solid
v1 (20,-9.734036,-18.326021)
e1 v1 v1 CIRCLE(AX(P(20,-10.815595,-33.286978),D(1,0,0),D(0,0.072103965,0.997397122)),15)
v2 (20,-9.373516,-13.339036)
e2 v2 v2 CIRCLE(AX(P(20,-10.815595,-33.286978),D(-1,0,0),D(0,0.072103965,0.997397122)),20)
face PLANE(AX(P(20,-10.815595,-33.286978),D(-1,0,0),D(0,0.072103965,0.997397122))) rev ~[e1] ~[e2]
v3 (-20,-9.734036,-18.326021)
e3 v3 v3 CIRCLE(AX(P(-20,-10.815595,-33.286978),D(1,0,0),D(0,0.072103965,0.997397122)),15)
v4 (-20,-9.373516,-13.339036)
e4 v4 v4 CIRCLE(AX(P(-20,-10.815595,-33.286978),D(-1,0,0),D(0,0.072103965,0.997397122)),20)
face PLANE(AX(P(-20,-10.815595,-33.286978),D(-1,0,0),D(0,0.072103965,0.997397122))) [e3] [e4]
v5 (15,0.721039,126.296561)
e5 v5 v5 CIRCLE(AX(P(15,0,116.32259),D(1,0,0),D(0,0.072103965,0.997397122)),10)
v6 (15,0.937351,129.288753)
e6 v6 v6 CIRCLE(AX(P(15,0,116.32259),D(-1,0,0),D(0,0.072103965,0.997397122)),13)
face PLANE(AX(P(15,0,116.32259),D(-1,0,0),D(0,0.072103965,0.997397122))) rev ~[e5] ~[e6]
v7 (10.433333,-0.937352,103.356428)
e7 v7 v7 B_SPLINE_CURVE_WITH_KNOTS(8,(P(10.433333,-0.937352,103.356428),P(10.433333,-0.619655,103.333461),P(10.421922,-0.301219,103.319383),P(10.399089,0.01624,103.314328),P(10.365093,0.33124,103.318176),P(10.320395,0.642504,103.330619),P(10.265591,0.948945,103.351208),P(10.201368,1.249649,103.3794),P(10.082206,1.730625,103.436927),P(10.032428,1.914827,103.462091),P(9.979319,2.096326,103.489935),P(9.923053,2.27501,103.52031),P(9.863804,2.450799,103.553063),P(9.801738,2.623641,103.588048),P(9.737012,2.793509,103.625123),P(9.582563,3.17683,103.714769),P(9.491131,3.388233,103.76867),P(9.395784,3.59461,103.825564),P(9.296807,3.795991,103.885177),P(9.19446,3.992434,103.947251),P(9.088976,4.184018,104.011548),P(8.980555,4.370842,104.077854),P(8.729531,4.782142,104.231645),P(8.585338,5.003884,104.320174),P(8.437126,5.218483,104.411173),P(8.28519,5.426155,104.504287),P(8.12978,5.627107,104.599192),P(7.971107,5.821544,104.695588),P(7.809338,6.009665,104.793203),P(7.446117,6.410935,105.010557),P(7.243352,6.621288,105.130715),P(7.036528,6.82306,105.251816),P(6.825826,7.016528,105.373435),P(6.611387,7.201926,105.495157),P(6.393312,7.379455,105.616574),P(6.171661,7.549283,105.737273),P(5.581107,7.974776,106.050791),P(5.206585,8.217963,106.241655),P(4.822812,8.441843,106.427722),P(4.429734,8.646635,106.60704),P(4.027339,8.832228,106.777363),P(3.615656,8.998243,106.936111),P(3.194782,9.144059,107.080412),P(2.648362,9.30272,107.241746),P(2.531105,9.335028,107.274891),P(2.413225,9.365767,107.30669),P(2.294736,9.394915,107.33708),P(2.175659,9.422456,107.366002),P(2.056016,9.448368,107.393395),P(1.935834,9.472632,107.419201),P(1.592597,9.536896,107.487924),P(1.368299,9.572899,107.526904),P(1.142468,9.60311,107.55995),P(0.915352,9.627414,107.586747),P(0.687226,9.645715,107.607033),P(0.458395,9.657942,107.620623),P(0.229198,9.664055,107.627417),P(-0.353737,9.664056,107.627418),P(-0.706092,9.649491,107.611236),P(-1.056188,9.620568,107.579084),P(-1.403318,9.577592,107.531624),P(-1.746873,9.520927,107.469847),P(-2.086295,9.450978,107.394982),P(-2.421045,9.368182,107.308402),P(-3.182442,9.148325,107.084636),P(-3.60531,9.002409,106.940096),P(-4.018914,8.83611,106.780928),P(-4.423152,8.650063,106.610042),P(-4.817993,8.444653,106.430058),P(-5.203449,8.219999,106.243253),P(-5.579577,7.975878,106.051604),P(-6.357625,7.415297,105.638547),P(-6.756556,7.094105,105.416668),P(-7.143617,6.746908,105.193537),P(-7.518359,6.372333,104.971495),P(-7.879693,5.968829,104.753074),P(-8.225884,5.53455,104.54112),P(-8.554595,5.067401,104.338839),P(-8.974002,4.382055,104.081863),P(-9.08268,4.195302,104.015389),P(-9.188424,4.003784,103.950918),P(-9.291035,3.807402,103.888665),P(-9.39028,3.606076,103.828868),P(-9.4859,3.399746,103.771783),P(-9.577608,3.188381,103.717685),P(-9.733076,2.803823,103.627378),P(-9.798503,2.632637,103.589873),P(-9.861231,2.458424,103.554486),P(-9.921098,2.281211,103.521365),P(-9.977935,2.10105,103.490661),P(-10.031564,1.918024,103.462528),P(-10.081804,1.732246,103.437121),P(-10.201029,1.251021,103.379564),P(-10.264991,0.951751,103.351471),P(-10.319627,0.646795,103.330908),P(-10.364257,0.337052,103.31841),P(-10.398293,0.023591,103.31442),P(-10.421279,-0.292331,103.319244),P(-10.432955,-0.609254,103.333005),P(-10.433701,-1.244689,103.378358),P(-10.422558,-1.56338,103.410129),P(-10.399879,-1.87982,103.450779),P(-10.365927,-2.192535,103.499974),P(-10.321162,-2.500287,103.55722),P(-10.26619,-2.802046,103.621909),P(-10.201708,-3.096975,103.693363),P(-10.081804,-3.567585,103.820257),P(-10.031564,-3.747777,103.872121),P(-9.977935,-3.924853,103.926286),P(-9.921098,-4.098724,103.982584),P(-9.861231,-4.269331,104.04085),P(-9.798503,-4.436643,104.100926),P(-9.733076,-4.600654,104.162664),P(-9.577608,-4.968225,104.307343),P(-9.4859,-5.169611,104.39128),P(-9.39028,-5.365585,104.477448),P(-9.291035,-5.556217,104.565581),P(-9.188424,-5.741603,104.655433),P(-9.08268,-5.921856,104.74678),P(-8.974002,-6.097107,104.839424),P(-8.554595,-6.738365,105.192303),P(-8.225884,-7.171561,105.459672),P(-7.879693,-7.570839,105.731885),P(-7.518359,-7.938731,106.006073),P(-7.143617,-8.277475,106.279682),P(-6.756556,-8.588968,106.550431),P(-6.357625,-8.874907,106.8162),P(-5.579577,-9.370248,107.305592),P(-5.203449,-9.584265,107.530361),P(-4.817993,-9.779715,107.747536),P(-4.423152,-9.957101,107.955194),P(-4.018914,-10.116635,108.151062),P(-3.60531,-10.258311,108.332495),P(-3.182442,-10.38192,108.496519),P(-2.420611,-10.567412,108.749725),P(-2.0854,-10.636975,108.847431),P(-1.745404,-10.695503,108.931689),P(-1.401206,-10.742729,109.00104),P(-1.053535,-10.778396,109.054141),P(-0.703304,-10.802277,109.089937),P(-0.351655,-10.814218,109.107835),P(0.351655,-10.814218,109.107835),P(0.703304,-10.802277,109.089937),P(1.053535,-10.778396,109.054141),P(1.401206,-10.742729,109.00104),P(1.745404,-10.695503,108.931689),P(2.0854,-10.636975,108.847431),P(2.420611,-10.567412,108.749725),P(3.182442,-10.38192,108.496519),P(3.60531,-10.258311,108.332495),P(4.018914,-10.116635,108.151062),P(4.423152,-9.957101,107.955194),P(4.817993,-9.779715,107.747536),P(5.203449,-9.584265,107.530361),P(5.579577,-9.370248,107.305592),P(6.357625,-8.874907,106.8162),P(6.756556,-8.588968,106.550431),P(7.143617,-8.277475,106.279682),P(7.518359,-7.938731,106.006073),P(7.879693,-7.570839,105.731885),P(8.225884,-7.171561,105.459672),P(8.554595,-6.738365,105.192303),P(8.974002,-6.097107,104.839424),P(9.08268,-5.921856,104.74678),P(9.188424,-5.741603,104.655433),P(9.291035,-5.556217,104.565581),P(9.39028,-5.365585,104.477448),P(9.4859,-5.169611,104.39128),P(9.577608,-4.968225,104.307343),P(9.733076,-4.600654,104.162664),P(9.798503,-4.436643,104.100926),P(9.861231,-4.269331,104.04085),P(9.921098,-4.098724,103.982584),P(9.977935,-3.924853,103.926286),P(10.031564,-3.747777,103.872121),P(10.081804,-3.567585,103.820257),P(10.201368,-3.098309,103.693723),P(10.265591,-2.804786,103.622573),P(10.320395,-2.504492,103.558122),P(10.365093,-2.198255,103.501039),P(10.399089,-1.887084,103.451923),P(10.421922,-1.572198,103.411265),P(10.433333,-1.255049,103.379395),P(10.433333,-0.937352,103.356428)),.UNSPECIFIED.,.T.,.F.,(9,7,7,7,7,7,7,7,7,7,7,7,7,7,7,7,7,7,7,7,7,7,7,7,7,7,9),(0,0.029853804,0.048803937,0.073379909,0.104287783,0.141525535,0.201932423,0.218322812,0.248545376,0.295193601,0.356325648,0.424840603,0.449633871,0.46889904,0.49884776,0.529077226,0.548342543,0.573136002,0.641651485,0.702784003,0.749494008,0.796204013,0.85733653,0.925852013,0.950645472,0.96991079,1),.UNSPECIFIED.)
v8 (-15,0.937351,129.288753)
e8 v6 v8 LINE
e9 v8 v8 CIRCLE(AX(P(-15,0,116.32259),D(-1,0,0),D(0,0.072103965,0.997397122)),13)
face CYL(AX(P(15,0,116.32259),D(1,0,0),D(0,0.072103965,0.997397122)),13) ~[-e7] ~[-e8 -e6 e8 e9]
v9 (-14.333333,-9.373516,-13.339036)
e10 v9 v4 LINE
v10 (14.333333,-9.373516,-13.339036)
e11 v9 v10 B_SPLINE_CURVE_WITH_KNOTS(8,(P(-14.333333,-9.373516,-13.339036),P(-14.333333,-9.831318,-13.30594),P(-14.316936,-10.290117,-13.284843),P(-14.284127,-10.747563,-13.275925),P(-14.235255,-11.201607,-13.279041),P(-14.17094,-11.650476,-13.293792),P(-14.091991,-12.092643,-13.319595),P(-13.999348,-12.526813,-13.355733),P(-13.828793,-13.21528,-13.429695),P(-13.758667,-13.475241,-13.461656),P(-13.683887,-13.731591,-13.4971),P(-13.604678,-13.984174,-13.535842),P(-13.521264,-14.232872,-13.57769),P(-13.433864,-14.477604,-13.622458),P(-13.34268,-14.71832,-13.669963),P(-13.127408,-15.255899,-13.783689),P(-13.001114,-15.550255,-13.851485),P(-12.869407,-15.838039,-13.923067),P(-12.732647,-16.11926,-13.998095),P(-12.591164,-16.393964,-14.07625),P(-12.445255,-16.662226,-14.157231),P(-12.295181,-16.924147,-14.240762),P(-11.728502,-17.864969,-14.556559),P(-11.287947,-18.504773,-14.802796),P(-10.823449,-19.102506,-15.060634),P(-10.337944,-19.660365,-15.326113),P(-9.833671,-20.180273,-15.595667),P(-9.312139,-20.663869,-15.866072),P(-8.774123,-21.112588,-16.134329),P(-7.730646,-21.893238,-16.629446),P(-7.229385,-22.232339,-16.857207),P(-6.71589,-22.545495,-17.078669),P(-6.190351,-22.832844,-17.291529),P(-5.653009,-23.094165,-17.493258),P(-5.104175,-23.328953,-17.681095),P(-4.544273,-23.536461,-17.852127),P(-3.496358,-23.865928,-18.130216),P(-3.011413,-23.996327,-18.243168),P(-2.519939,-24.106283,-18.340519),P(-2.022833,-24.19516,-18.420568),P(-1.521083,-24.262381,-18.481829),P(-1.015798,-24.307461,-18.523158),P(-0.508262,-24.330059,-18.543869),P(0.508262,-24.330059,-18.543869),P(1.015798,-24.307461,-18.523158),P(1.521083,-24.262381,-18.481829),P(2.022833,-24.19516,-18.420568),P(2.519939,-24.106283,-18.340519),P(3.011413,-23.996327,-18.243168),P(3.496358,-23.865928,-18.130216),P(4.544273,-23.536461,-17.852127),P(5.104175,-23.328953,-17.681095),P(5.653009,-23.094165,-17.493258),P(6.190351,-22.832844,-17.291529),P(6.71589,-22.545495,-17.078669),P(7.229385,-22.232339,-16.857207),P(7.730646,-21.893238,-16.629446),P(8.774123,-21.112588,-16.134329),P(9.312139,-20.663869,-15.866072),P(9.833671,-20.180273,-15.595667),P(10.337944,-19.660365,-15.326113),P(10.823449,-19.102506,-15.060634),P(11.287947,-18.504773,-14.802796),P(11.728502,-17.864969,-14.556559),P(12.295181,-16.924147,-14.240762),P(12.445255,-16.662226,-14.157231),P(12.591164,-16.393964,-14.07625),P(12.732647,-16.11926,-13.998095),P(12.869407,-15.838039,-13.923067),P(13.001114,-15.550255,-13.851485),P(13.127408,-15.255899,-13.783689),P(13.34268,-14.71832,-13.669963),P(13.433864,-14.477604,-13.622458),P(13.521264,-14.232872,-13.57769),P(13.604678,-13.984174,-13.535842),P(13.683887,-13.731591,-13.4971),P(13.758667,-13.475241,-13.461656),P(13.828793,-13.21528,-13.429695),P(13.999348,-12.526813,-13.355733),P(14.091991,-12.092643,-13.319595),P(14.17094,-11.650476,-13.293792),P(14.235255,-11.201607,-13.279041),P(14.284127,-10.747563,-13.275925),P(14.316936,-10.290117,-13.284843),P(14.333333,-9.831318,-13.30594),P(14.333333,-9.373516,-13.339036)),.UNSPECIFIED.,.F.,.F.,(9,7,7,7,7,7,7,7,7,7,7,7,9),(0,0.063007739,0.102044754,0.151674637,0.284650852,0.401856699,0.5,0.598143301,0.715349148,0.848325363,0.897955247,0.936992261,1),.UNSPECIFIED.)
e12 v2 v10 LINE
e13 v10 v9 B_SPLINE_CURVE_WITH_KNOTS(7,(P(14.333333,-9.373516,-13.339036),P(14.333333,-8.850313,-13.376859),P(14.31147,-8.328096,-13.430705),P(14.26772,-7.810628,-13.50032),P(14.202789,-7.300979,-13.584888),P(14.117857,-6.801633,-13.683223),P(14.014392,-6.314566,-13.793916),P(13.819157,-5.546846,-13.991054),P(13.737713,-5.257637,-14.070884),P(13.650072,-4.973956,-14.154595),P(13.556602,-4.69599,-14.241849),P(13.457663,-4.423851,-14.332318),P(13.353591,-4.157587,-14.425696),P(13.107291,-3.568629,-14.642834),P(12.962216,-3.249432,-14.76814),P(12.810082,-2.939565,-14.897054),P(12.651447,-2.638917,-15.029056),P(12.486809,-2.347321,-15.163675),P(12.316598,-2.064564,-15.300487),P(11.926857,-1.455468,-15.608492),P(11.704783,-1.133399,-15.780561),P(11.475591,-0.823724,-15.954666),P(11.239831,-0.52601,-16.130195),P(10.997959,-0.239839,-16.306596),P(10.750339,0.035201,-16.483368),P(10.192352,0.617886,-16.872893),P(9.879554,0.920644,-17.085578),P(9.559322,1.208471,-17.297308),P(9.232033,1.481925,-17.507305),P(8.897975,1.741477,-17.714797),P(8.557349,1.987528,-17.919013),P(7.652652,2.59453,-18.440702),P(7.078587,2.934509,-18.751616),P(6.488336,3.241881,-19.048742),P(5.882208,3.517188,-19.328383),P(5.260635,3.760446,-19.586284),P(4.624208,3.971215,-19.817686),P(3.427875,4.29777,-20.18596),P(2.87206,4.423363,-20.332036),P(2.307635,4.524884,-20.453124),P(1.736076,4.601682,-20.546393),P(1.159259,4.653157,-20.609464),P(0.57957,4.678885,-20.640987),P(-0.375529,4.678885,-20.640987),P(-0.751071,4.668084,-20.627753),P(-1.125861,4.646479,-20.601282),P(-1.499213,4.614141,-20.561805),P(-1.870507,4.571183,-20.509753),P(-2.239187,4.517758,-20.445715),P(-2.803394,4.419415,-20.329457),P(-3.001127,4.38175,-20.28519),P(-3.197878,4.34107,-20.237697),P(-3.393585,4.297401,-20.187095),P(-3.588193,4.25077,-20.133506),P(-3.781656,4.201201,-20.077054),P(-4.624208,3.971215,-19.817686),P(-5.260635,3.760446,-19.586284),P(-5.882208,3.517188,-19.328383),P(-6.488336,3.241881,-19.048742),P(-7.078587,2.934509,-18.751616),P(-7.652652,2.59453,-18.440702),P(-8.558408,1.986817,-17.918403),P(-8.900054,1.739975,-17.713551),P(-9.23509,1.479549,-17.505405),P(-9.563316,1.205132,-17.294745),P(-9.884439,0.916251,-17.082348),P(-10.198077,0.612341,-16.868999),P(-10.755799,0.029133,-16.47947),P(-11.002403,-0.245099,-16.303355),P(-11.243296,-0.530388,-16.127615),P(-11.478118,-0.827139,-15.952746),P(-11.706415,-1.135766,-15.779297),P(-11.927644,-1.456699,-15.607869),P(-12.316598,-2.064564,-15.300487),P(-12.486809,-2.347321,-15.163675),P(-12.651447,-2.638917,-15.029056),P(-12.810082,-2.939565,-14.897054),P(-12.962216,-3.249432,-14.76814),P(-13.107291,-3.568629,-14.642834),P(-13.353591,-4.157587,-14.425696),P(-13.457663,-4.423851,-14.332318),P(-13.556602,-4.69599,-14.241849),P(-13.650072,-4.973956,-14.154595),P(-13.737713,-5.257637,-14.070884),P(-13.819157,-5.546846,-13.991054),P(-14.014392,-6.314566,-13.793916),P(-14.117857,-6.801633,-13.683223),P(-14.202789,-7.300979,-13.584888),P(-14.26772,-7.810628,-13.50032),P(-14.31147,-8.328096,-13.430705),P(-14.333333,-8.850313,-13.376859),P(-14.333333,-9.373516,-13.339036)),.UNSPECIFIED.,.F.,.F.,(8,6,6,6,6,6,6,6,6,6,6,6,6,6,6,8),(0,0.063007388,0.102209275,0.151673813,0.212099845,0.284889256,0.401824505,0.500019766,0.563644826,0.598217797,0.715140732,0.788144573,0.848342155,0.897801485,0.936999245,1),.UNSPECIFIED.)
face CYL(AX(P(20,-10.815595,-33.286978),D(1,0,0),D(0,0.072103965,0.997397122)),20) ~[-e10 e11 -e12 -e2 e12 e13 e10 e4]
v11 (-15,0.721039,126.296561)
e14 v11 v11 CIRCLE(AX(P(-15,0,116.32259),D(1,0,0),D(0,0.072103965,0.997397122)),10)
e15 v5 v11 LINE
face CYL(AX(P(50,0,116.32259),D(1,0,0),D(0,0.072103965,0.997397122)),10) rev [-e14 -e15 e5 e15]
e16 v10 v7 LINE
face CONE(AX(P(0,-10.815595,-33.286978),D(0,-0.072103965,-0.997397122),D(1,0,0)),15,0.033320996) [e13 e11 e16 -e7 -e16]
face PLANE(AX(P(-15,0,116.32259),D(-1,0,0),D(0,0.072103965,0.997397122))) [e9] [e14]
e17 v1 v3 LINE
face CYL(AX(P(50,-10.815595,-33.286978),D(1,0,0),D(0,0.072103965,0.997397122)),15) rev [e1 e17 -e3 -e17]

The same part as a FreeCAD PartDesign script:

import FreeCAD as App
import Part
import Sketcher

V = App.Vector
Q = App.Units.Quantity

doc = App.newDocument("Part")
params = doc.addObject("Spreadsheet::Sheet", "Params")
for row, (alias, value) in enumerate([
    ("sketch1_diameter", "20 mm"),
    ("pad1_length", "100 mm"),
    ("sketch2_diameter", "30 mm"),
    ("pad2_length", "100 mm"),
    ("sketch3_width", "15 mm"),
    ("sketch3_width2", "10 mm"),
    ("sketch3_height", "150 mm"),
    ("revolution_angle", "360 deg"),
    ("sketch4_diameter", "26 mm"),
    ("pad3_length", "30 mm"),
    ("sketch5_diameter", "40 mm"),
    ("pad4_length", "40 mm"),
], start=1):
    params.set(f"A{row}", alias)
    params.set(f"B{row}", "=" + value)
    params.setAlias(f"B{row}", alias)

body = doc.addObject("PartDesign::Body", "Body")

sketch1 = doc.addObject("Sketcher::SketchObject", "Sketch")
body.addObject(sketch1)
sketch1.AttachmentSupport = (doc.YZ_Plane, [""])
sketch1.MapMode = "FlatFace"
sketch1.AttachmentOffset = App.Placement(V(0, 0, 50), App.Rotation())
sketch1.addGeometry(Part.Circle(V(0, 150, 0), V(0, 0, 1), 10), False)
sketch1.addConstraint([
    Sketcher.Constraint("PointOnObject", 0, 3, -2),
    Sketcher.Constraint("Diameter", 0, Q("20 mm")),
    Sketcher.Constraint("DistanceY", -1, 1, 0, 3, Q("150 mm")),
])
sketch1.setExpression("Constraints[1]", "Params.sketch1_diameter")
pad1 = doc.addObject("PartDesign::Pad", "Pad")
body.addObject(pad1)
pad1.Profile = sketch1
pad1.setExpression("Length", "Params.pad1_length")
pad1.Reversed = True
body2 = doc.addObject("PartDesign::Body", "Body001")
body2.AllowCompound = True

sketch2 = doc.addObject("Sketcher::SketchObject", "Sketch001")
body2.addObject(sketch2)
sketch2.AttachmentSupport = (doc.getObject("YZ_Plane001"), [""])
sketch2.MapMode = "FlatFace"
sketch2.AttachmentOffset = App.Placement(V(0, 0, 50), App.Rotation())
sketch2.addGeometry(Part.Circle(V(0, 0, 0), V(0, 0, 1), 15), False)
sketch2.addConstraint([
    Sketcher.Constraint("Coincident", 0, 3, -1, 1),
    Sketcher.Constraint("Diameter", 0, Q("30 mm")),
])
sketch2.setExpression("Constraints[1]", "Params.sketch2_diameter")
pad2 = doc.addObject("PartDesign::Pad", "Pad001")
body2.addObject(pad2)
pad2.Profile = sketch2
pad2.setExpression("Length", "Params.pad2_length")
pad2.Reversed = True
doc.recompute()

boolean = doc.addObject("PartDesign::Boolean", "Boolean")
body2.addObject(boolean)
boolean.Type = "Fuse"
boolean.addObjects([body])
body3 = doc.addObject("PartDesign::Body", "Body002")

sketch3 = doc.addObject("Sketcher::SketchObject", "Sketch002")
body3.addObject(sketch3)
sketch3.AttachmentSupport = (doc.getObject("XZ_Plane002"), [""])
sketch3.MapMode = "FlatFace"
sketch3.addGeometry([
    Part.LineSegment(V(0, 0, 0), V(15, 0, 0)),
    Part.LineSegment(V(15, 0, 0), V(10, 150, 0)),
    Part.LineSegment(V(10, 150, 0), V(0, 150, 0)),
    Part.LineSegment(V(0, 150, 0), V(0, 0, 0)),
], False)
sketch3.addConstraint([
    Sketcher.Constraint("Coincident", 0, 2, 1, 1),
    Sketcher.Constraint("Coincident", 1, 2, 2, 1),
    Sketcher.Constraint("Coincident", 2, 2, 3, 1),
    Sketcher.Constraint("Coincident", 3, 2, 0, 1),
    Sketcher.Constraint("Horizontal", 0),
    Sketcher.Constraint("Horizontal", 2),
    Sketcher.Constraint("Vertical", 3),
    Sketcher.Constraint("Coincident", 3, 2, -1, 1),
    Sketcher.Constraint("DistanceX", 0, 1, 0, 2, Q("15 mm")),
    Sketcher.Constraint("DistanceX", 2, 2, 2, 1, Q("10 mm")),
    Sketcher.Constraint("DistanceY", 3, 2, 3, 1, Q("150 mm")),
])
sketch3.setExpression("Constraints[8]", "Params.sketch3_width")
sketch3.setExpression("Constraints[9]", "Params.sketch3_width2")
sketch3.setExpression("Constraints[10]", "Params.sketch3_height")
revolution = doc.addObject("PartDesign::Revolution", "Revolution")
body3.addObject(revolution)
revolution.Profile = sketch3
revolution.ReferenceAxis = (sketch3, ["V_Axis"])
revolution.setExpression("Angle", "Params.revolution_angle")
body4 = doc.addObject("PartDesign::Body", "Body003")

sketch4 = doc.addObject("Sketcher::SketchObject", "Sketch003")
body4.addObject(sketch4)
sketch4.AttachmentSupport = (doc.getObject("YZ_Plane003"), [""])
sketch4.MapMode = "FlatFace"
sketch4.AttachmentOffset = App.Placement(V(0, 0, 15), App.Rotation())
sketch4.addGeometry(Part.Circle(V(0, 150, 0), V(0, 0, 1), 13), False)
sketch4.addConstraint([
    Sketcher.Constraint("PointOnObject", 0, 3, -2),
    Sketcher.Constraint("Diameter", 0, Q("26 mm")),
    Sketcher.Constraint("DistanceY", -1, 1, 0, 3, Q("150 mm")),
])
sketch4.setExpression("Constraints[1]", "Params.sketch4_diameter")
pad3 = doc.addObject("PartDesign::Pad", "Pad002")
body4.addObject(pad3)
pad3.Profile = sketch4
pad3.setExpression("Length", "Params.pad3_length")
pad3.Reversed = True
body5 = doc.addObject("PartDesign::Body", "Body004")

sketch5 = doc.addObject("Sketcher::SketchObject", "Sketch004")
body5.addObject(sketch5)
sketch5.AttachmentSupport = (doc.getObject("YZ_Plane004"), [""])
sketch5.MapMode = "FlatFace"
sketch5.AttachmentOffset = App.Placement(V(0, 0, 20), App.Rotation())
sketch5.addGeometry(Part.Circle(V(0, 0, 0), V(0, 0, 1), 20), False)
sketch5.addConstraint([
    Sketcher.Constraint("Coincident", 0, 3, -1, 1),
    Sketcher.Constraint("Diameter", 0, Q("40 mm")),
])
sketch5.setExpression("Constraints[1]", "Params.sketch5_diameter")
pad4 = doc.addObject("PartDesign::Pad", "Pad003")
body5.addObject(pad4)
pad4.Profile = sketch5
pad4.setExpression("Length", "Params.pad4_length")
pad4.Reversed = True
doc.recompute()

boolean2 = doc.addObject("PartDesign::Boolean", "Boolean001")
body5.addObject(boolean2)
boolean2.Type = "Fuse"
boolean2.addObjects([body3])
doc.recompute()

boolean3 = doc.addObject("PartDesign::Boolean", "Boolean002")
body5.addObject(boolean3)
boolean3.Type = "Fuse"
boolean3.addObjects([body4])
doc.recompute()

boolean4 = doc.addObject("PartDesign::Boolean", "Boolean003")
body5.addObject(boolean4)
boolean4.Type = "Cut"
boolean4.addObjects([body2])
body6 = doc.addObject("PartDesign::Body", "Body005")
doc.recompute()

body5.Placement = App.Placement(V(0, -10.815595, -33.286978), App.Rotation(V(1, 0, 0), 355.865159))
boolean5 = doc.addObject("PartDesign::Boolean", "Boolean004")
body6.addObject(boolean5)
boolean5.Type = "Fuse"
boolean5.addObjects([body5])

doc.recompute()
